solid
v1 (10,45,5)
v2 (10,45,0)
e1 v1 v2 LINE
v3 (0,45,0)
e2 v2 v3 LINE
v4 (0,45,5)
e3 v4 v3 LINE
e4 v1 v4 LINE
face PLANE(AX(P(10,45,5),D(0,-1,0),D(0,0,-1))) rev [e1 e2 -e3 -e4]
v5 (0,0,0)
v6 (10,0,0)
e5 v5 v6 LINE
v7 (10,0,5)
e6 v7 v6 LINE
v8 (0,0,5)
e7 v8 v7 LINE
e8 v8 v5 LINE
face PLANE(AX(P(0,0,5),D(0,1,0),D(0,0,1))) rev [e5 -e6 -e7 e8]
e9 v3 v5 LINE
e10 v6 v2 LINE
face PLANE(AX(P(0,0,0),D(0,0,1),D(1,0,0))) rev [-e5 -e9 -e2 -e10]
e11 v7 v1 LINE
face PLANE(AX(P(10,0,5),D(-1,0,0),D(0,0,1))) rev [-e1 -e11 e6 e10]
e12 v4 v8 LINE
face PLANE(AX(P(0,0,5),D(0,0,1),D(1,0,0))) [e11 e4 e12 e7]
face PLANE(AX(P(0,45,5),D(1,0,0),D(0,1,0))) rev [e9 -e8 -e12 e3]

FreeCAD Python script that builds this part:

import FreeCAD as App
import Part
import Sketcher

V = App.Vector
Q = App.Units.Quantity


def add_polygon(sketch, points):
    """Adds a closed chain of lines whose ends are joined by coincident constraints."""
    first, n = sketch.GeometryCount, len(points)
    for a, b in zip(points, points[1:] + points[:1]):
        sketch.addGeometry(Part.LineSegment(App.Vector(*a, 0), App.Vector(*b, 0)), False)
    for i in range(n):
        sketch.addConstraint(Sketcher.Constraint("Coincident", first + i, 2, first + (i + 1) % n, 1))

doc = App.newDocument("Part")
params = doc.addObject("Spreadsheet::Sheet", "Params")
for row, (alias, value) in enumerate([
    ("sketch1_width", "10 mm"),
    ("sketch1_height", "45 mm"),
    ("pad1_length", "5 mm"),
], start=1):
    params.set(f"A{row}", alias)
    params.set(f"B{row}", "=" + value)
    params.setAlias(f"B{row}", alias)

body = doc.addObject("PartDesign::Body", "Body")

# Sketch on XY plane
sketch1 = body.newObject("Sketcher::SketchObject", "Sketch")
sketch1.AttachmentSupport = (doc.getObject("XY_Plane"), [""])
sketch1.MapMode = "FlatFace"
add_polygon(sketch1, [(0, 45), (0, 0), (10, 0), (10, 45)])  # lines 0-3
sketch1.addConstraint([
    Sketcher.Constraint("Vertical", 0),
    Sketcher.Constraint("Horizontal", 1),
    Sketcher.Constraint("Vertical", 2),
    Sketcher.Constraint("Horizontal", 3),
    Sketcher.Constraint("Coincident", 0, 2, -1, 1),
    Sketcher.Constraint("DistanceX", 1, 1, 1, 2, Q("10 mm")),
    Sketcher.Constraint("DistanceY", 0, 2, 0, 1, Q("45 mm")),
])
sketch1.setExpression("Constraints[9]", "Params.sketch1_width")
sketch1.setExpression("Constraints[10]", "Params.sketch1_height")
pad1 = body.newObject("PartDesign::Pad", "Pad")
pad1.Profile = sketch1
pad1.setExpression("Length", "Params.pad1_length")

doc.recompute()
